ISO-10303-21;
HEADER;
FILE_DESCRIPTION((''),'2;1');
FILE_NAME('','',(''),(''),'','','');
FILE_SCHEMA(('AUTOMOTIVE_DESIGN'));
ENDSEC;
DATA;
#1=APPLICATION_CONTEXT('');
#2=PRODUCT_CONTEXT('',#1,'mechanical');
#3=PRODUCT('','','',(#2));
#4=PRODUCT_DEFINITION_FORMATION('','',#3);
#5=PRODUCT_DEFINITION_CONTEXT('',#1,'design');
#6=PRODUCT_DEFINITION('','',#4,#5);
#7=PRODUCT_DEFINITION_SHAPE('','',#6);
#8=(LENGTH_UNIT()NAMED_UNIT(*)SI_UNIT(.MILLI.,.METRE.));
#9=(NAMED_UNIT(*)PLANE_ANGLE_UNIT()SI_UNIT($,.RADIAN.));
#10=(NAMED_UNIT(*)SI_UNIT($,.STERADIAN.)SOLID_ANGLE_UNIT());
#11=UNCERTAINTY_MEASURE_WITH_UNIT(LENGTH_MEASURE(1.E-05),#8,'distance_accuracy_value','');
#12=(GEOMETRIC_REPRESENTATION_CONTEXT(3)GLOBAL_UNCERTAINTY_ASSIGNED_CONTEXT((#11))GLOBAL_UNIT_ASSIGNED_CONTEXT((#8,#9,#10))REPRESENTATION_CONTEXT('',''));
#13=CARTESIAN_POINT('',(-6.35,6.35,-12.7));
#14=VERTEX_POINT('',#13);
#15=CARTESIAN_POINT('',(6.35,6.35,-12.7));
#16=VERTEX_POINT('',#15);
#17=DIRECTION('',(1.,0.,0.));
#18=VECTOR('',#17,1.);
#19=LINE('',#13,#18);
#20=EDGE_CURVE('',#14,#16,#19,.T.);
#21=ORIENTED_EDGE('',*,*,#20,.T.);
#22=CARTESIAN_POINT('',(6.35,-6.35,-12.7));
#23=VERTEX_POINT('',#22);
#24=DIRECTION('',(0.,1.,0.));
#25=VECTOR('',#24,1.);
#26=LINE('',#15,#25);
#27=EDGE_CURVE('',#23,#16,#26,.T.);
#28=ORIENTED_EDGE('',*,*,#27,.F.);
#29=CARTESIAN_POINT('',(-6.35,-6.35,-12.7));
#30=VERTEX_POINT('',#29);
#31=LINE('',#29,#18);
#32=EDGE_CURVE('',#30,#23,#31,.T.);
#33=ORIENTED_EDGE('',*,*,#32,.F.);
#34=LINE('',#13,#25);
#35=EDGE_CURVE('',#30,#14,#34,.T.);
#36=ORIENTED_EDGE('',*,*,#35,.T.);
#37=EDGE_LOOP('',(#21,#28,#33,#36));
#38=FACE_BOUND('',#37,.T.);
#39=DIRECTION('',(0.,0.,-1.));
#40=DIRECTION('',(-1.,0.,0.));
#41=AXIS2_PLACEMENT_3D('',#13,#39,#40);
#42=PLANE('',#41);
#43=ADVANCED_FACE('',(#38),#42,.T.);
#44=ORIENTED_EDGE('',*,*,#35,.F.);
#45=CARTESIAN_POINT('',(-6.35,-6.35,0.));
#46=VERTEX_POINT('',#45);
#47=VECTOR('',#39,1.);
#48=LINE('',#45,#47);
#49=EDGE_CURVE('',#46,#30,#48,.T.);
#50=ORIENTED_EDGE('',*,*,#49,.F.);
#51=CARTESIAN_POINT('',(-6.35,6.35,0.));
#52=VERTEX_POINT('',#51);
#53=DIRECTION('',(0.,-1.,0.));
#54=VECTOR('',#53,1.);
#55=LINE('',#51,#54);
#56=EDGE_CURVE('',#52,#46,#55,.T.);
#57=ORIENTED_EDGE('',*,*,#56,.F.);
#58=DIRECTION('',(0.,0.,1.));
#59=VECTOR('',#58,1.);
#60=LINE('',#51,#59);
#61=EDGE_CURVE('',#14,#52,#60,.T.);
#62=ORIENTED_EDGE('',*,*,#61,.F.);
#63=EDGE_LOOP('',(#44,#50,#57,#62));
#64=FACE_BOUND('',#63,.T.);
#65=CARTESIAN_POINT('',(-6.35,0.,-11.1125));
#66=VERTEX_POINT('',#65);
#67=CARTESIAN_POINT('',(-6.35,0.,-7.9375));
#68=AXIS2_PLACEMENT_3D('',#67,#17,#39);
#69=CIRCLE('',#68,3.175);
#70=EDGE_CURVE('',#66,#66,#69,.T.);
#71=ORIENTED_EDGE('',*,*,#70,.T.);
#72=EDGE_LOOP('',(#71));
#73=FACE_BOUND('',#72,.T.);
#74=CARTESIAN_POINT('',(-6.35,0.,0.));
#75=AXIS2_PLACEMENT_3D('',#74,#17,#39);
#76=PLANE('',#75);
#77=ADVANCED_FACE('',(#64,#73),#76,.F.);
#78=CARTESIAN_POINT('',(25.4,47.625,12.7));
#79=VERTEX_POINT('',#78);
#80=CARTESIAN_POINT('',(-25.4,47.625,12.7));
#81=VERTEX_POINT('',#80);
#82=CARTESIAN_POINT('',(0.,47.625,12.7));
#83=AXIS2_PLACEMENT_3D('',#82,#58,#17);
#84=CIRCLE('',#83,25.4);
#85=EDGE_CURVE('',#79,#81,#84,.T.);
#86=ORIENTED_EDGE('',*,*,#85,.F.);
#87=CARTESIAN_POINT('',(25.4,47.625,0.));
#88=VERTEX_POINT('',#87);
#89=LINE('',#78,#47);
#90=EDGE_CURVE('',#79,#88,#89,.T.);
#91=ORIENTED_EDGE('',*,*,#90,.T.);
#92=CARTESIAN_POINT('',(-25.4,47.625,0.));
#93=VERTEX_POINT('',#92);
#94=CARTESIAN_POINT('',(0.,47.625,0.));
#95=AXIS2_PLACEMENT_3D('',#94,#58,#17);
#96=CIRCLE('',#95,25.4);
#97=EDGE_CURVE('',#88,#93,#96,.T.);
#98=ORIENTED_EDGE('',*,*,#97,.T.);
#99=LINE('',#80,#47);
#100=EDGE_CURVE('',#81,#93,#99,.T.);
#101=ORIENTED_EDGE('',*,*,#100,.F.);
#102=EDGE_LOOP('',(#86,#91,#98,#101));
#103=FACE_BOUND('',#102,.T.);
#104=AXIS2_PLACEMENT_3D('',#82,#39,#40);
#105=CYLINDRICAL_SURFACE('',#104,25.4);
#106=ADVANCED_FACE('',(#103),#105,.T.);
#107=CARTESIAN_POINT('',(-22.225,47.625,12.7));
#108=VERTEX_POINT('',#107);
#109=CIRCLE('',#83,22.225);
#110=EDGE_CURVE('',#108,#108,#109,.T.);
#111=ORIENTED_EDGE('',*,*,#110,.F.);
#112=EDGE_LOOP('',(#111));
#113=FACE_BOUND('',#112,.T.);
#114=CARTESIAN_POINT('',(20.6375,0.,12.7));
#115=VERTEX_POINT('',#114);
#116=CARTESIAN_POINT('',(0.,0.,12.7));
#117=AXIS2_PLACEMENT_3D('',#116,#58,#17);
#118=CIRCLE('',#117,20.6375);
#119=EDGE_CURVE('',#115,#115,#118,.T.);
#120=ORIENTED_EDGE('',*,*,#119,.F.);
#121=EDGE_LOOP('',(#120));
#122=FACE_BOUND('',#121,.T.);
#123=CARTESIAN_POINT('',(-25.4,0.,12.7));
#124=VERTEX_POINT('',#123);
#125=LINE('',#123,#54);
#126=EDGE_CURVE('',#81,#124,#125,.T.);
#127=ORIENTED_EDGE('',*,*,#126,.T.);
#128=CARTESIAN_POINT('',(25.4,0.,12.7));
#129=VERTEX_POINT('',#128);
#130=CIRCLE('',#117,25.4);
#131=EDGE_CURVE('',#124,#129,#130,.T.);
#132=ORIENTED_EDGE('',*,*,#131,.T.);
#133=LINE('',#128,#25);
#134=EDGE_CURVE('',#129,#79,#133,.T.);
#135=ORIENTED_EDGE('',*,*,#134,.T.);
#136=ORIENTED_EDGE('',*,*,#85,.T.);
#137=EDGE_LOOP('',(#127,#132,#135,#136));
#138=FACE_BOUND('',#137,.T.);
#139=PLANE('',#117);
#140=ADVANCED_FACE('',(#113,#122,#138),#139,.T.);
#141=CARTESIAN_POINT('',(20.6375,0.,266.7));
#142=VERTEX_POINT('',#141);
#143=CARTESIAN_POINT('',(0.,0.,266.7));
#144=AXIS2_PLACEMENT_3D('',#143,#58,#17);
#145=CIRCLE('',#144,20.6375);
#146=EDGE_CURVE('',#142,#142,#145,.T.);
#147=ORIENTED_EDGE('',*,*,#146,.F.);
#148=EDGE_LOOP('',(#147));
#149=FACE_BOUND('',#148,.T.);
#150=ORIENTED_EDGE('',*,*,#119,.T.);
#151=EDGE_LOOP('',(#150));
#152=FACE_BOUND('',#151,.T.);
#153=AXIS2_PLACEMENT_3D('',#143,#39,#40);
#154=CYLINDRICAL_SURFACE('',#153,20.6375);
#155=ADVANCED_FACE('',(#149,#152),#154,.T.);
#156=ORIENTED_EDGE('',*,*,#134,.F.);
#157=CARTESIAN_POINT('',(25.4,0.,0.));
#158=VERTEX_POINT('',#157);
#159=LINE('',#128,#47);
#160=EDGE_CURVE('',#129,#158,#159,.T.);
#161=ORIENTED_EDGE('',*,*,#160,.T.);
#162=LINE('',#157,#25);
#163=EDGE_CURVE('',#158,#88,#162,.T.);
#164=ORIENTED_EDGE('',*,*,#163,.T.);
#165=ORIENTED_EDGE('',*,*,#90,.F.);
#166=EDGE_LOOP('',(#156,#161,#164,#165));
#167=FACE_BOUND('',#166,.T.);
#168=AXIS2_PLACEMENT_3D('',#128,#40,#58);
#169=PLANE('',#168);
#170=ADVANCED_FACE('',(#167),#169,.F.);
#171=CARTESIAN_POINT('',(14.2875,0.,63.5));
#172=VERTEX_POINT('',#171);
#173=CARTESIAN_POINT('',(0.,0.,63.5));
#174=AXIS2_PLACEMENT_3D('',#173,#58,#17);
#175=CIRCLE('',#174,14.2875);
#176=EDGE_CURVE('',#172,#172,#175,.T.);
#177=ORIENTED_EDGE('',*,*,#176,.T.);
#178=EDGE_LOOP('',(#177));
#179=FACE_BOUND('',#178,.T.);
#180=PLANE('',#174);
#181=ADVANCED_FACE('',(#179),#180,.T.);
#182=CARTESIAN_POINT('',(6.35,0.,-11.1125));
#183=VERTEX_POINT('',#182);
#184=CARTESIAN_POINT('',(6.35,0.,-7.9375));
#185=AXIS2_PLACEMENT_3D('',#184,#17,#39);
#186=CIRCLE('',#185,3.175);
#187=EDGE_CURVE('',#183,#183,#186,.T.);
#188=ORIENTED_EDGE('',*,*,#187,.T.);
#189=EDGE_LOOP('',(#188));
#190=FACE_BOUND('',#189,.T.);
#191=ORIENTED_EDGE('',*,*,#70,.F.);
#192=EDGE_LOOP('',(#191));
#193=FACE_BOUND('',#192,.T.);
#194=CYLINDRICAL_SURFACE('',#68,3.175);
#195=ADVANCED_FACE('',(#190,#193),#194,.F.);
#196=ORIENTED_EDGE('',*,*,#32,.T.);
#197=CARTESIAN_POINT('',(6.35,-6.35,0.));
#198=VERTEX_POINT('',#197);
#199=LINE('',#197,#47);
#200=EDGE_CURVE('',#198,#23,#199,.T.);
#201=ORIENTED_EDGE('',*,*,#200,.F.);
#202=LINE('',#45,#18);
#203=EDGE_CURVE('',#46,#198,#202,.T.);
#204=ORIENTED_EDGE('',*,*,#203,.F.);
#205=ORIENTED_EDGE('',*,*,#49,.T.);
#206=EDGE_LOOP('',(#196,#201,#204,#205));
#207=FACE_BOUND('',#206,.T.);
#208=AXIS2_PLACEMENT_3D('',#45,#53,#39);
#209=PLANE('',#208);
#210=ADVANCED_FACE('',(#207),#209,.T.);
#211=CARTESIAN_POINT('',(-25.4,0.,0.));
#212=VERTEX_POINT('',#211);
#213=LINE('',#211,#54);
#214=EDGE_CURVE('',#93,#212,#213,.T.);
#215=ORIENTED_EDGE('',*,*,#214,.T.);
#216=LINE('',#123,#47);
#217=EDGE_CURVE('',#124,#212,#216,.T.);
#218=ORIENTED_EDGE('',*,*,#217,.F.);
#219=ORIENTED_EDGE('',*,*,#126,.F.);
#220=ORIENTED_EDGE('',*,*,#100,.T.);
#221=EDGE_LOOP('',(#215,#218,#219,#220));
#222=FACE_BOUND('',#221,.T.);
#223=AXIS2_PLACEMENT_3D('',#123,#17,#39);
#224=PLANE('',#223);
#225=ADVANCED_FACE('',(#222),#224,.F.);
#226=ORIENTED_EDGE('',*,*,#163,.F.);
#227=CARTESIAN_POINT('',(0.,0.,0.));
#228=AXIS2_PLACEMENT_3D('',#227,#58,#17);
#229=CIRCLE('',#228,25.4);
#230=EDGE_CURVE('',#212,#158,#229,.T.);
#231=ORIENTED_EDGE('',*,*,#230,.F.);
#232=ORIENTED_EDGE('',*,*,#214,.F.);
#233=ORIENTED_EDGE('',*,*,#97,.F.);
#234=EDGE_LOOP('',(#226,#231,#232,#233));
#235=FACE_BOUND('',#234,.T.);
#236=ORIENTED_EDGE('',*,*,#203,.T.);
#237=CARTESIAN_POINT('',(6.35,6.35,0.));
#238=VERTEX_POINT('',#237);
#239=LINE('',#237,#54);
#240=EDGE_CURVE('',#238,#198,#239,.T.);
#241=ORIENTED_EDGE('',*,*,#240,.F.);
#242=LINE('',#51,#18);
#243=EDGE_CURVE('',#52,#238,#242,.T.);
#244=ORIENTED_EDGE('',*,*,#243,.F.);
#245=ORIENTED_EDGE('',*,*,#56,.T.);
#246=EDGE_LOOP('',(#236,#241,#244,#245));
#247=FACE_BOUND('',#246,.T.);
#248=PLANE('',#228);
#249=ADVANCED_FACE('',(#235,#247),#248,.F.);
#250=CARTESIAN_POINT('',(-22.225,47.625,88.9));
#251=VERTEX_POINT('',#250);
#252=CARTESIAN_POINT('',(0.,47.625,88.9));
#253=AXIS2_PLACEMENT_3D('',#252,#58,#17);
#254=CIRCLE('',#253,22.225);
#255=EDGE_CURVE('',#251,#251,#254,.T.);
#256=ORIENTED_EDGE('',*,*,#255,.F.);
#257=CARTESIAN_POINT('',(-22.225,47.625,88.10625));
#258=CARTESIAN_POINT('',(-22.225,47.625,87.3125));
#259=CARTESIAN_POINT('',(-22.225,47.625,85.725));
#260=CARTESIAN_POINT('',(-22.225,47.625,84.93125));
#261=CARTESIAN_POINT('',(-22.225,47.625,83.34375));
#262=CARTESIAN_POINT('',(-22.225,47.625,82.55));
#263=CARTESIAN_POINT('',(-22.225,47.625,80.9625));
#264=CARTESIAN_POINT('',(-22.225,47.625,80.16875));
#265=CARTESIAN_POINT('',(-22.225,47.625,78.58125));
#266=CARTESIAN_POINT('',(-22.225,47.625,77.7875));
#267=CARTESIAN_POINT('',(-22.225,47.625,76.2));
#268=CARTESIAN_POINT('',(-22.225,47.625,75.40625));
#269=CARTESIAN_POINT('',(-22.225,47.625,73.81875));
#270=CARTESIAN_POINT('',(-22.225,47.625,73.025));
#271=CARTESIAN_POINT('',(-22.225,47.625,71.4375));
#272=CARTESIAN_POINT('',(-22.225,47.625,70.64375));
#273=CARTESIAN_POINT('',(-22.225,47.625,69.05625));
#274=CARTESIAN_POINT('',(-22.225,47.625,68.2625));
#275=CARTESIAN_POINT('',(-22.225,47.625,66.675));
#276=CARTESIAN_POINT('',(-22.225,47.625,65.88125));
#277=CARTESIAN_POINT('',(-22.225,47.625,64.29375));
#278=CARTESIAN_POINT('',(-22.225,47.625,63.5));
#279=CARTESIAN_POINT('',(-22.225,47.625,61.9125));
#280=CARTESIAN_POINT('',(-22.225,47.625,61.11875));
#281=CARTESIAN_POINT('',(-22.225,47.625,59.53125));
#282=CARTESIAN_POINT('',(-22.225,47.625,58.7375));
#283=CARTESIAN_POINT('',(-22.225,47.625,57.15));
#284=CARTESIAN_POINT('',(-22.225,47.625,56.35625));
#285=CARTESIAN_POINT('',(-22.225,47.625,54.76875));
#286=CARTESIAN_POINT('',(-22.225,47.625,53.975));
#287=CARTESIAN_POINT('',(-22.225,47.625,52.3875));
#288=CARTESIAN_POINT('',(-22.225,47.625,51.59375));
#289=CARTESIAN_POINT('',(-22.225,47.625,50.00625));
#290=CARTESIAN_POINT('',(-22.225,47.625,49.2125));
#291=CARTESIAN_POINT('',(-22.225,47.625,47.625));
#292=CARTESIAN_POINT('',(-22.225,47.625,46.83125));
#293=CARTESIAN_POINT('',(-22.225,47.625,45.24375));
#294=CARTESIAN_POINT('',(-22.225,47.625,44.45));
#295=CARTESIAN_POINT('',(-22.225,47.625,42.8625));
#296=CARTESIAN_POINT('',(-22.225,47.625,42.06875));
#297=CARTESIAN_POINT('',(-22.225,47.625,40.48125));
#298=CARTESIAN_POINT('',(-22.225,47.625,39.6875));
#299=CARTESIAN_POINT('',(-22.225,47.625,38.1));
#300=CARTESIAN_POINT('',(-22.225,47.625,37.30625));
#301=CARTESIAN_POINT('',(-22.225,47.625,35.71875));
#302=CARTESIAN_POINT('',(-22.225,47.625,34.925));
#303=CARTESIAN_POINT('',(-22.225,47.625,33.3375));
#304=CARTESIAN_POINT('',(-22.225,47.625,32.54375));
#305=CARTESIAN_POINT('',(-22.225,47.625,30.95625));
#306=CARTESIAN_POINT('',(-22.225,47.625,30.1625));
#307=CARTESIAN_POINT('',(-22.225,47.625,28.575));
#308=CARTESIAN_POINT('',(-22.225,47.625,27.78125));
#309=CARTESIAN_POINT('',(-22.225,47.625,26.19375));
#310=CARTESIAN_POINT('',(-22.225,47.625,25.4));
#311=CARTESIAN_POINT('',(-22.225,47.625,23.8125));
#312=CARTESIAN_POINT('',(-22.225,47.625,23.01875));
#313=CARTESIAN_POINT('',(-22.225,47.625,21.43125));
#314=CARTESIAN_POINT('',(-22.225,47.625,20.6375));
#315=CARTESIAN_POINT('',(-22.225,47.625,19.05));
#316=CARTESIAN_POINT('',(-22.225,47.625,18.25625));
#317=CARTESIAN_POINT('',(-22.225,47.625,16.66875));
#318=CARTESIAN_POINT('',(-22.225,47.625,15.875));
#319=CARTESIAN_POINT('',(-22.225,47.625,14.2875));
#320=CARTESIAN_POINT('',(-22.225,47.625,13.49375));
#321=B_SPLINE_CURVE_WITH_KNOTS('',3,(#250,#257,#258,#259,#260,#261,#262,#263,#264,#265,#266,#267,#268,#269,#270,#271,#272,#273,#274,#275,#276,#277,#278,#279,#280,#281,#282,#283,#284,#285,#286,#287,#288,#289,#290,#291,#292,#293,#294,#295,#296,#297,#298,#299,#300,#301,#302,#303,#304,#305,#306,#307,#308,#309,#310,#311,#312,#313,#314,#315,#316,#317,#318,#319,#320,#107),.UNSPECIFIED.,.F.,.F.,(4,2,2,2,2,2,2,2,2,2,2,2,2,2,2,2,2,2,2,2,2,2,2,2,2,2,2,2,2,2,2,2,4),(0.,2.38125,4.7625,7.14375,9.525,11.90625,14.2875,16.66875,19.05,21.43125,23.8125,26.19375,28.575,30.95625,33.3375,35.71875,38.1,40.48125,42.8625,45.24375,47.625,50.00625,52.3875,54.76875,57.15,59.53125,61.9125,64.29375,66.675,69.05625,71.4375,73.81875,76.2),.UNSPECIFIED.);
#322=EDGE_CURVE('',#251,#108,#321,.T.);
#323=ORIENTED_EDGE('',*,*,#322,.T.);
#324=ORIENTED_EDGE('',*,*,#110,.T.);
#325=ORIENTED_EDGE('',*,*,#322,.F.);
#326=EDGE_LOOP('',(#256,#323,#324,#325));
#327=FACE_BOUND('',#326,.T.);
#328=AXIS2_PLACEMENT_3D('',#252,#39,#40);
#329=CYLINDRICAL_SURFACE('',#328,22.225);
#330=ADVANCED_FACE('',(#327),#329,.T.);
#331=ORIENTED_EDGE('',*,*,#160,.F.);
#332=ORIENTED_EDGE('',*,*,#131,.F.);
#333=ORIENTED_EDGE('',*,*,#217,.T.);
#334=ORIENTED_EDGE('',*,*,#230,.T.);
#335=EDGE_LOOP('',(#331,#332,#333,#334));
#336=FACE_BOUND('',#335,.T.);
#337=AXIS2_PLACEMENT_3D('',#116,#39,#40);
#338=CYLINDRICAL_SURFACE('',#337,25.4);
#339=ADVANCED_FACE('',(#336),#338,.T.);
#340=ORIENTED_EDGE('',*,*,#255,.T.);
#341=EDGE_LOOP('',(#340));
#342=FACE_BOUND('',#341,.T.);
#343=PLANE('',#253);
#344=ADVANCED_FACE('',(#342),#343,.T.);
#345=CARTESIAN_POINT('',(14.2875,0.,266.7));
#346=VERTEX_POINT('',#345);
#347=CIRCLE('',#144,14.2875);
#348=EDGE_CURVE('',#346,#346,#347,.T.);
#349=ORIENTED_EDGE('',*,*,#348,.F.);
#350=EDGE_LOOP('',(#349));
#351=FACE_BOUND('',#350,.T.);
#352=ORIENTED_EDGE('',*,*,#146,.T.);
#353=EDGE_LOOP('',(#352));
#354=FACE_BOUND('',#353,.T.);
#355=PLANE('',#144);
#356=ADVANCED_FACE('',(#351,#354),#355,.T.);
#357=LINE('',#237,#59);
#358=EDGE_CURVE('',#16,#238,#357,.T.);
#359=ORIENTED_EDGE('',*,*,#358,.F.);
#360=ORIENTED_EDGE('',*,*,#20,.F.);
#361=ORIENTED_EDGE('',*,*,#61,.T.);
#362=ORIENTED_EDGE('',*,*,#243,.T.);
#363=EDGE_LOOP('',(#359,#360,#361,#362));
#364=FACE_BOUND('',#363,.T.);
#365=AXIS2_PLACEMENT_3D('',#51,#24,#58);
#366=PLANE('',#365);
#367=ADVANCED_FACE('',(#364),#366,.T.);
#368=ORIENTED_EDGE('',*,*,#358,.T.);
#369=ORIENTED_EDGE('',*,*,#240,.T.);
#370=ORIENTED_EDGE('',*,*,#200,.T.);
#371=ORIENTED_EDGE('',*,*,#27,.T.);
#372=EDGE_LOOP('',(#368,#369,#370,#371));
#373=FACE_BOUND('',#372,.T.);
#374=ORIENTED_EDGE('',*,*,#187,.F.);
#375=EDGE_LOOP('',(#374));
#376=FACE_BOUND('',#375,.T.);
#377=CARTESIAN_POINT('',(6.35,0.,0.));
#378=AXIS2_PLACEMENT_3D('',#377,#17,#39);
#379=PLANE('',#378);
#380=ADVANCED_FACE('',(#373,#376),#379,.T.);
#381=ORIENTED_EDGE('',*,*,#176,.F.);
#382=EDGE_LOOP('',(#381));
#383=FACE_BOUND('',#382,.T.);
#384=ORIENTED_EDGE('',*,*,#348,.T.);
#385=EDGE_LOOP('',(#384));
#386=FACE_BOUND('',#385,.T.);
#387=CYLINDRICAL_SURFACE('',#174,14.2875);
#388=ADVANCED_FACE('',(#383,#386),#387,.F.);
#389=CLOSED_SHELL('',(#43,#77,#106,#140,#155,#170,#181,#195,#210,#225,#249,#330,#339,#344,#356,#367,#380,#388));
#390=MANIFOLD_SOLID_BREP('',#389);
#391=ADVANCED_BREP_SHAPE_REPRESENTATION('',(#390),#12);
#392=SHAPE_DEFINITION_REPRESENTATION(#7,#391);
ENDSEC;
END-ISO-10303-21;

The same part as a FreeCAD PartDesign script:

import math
import FreeCAD as App
import Part
import Sketcher
from FreeCAD import Vector
Q = App.Units.Quantity

doc = App.newDocument("Part")
body = doc.addObject("PartDesign::Body", "Body")

# Sketch on XY plane
sketch1 = doc.addObject("Sketcher::SketchObject", "Sketch")
body.addObject(sketch1)
sketch1.AttachmentSupport = (doc.XY_Plane, [""])
sketch1.MapMode = "FlatFace"
sketch1.addGeometry(Part.LineSegment(Vector(-25.4, 47.625, 0), Vector(-25.4, 0, 0)), False)
sketch1.addGeometry(Part.ArcOfCircle(Part.Circle(Vector(0, 0, 0), Vector(0, 0, 1), 25.4), math.radians(180), math.radians(360)), False)
sketch1.addGeometry(Part.LineSegment(Vector(25.4, 0, 0), Vector(25.4, 47.625, 0)), False)
sketch1.addGeometry(Part.ArcOfCircle(Part.Circle(Vector(0, 47.625, 0), Vector(0, 0, 1), 25.4), math.radians(0), math.radians(180)), False)
sketch1.addConstraint(Sketcher.Constraint("Tangent", 0, 2, 1, 1))
sketch1.addConstraint(Sketcher.Constraint("Tangent", 1, 2, 2, 1))
sketch1.addConstraint(Sketcher.Constraint("Tangent", 2, 2, 3, 1))
sketch1.addConstraint(Sketcher.Constraint("Tangent", 3, 2, 0, 1))
sketch1.addConstraint(Sketcher.Constraint("Vertical", 0))
sketch1.addConstraint(Sketcher.Constraint("Vertical", 2))
sketch1.addConstraint(Sketcher.Constraint("Coincident", 1, 3, -1, 1))
sketch1.addConstraint(Sketcher.Constraint("Radius", 1, Q("1 in")))
sketch1.addConstraint(Sketcher.Constraint("DistanceY", 0, 2, 0, 1, Q("1.875 in")))
pad1 = doc.addObject("PartDesign::Pad", "Pad")
body.addObject(pad1)
pad1.Profile = sketch1
pad1.Length = Q("0.5 in")

# Sketch on XY plane
sketch2 = doc.addObject("Sketcher::SketchObject", "Sketch001")
body.addObject(sketch2)
sketch2.AttachmentSupport = (doc.XY_Plane, [""])
sketch2.MapMode = "FlatFace"
sketch2.AttachmentOffset = App.Placement(Vector(0, 0, 0.5 * 25.4), App.Rotation())
sketch2.addGeometry(Part.Circle(Vector(0, 47.625, 0), Vector(0, 0, 1), 22.225), False)
sketch2.addConstraint(Sketcher.Constraint("PointOnObject", 0, 3, -2))
sketch2.addConstraint(Sketcher.Constraint("Diameter", 0, Q("1.75 in")))
sketch2.addConstraint(Sketcher.Constraint("DistanceY", -1, 1, 0, 3, Q("1.875 in")))
pad2 = doc.addObject("PartDesign::Pad", "Pad001")
body.addObject(pad2)
pad2.Profile = sketch2
pad2.Length = Q("3 in")

# Sketch on XY plane
sketch3 = doc.addObject("Sketcher::SketchObject", "Sketch002")
body.addObject(sketch3)
sketch3.AttachmentSupport = (doc.XY_Plane, [""])
sketch3.MapMode = "FlatFace"
sketch3.AttachmentOffset = App.Placement(Vector(0, 0, 0.5 * 25.4), App.Rotation())
sketch3.addGeometry(Part.Circle(Vector(0, 0, 0), Vector(0, 0, 1), 20.6375), False)
sketch3.addConstraint(Sketcher.Constraint("Coincident", 0, 3, -1, 1))
sketch3.addConstraint(Sketcher.Constraint("Diameter", 0, Q("1.625 in")))
pad3 = doc.addObject("PartDesign::Pad", "Pad002")
body.addObject(pad3)
pad3.Profile = sketch3
pad3.Length = Q("10 in")

# Sketch on XY plane
sketch4 = doc.addObject("Sketcher::SketchObject", "Sketch003")
body.addObject(sketch4)
sketch4.AttachmentSupport = (doc.XY_Plane, [""])
sketch4.MapMode = "FlatFace"
sketch4.AttachmentOffset = App.Placement(Vector(0, 0, 10.5 * 25.4), App.Rotation())
sketch4.addGeometry(Part.Circle(Vector(0, 0, 0), Vector(0, 0, 1), 14.2875), False)
sketch4.addConstraint(Sketcher.Constraint("Coincident", 0, 3, -1, 1))
sketch4.addConstraint(Sketcher.Constraint("Diameter", 0, Q("1.125 in")))
pocket1 = doc.addObject("PartDesign::Pocket", "Pocket")
body.addObject(pocket1)
pocket1.Profile = sketch4
pocket1.Length = Q("8 in")

# Sketch on YZ plane
sketch5 = doc.addObject("Sketcher::SketchObject", "Sketch004")
body.addObject(sketch5)
sketch5.AttachmentSupport = (doc.YZ_Plane, [""])
sketch5.MapMode = "FlatFace"
sketch5.addGeometry(Part.LineSegment(Vector(6.35, 0, 0), Vector(-6.35, 0, 0)), False)
sketch5.addGeometry(Part.LineSegment(Vector(-6.35, 0, 0), Vector(-6.35, -12.7, 0)), False)
sketch5.addGeometry(Part.LineSegment(Vector(-6.35, -12.7, 0), Vector(6.35, -12.7, 0)), False)
sketch5.addGeometry(Part.LineSegment(Vector(6.35, -12.7, 0), Vector(6.35, 0, 0)), False)
sketch5.addGeometry(Part.Circle(Vector(0, -7.9375, 0), Vector(0, 0, 1), 3.175), False)
sketch5.addConstraint(Sketcher.Constraint("Coincident", 0, 2, 1, 1))
sketch5.addConstraint(Sketcher.Constraint("Coincident", 1, 2, 2, 1))
sketch5.addConstraint(Sketcher.Constraint("Coincident", 2, 2, 3, 1))
sketch5.addConstraint(Sketcher.Constraint("Coincident", 3, 2, 0, 1))
sketch5.addConstraint(Sketcher.Constraint("Horizontal", 0))
sketch5.addConstraint(Sketcher.Constraint("Vertical", 1))
sketch5.addConstraint(Sketcher.Constraint("Horizontal", 2))
sketch5.addConstraint(Sketcher.Constraint("Vertical", 3))
sketch5.addConstraint(Sketcher.Constraint("Symmetric", 0, 2, 3, 2, -1, 1))
sketch5.addConstraint(Sketcher.Constraint("PointOnObject", 4, 3, -2))
sketch5.addConstraint(Sketcher.Constraint("Equal", 2, 1))
sketch5.addConstraint(Sketcher.Constraint("Diameter", 4, Q("0.25 in")))
sketch5.addConstraint(Sketcher.Constraint("DistanceX", 0, 2, 0, 1, Q("0.5 in")))
sketch5.addConstraint(Sketcher.Constraint("DistanceY", 4, 3, -1, 1, Q("0.3125 in")))
pad4 = doc.addObject("PartDesign::Pad", "Pad003")
body.addObject(pad4)
pad4.Profile = sketch5
pad4.Type = "TwoLengths"
pad4.Length = Q("0.25 in")
pad4.Length2 = Q("0.25 in")

doc.recompute()
